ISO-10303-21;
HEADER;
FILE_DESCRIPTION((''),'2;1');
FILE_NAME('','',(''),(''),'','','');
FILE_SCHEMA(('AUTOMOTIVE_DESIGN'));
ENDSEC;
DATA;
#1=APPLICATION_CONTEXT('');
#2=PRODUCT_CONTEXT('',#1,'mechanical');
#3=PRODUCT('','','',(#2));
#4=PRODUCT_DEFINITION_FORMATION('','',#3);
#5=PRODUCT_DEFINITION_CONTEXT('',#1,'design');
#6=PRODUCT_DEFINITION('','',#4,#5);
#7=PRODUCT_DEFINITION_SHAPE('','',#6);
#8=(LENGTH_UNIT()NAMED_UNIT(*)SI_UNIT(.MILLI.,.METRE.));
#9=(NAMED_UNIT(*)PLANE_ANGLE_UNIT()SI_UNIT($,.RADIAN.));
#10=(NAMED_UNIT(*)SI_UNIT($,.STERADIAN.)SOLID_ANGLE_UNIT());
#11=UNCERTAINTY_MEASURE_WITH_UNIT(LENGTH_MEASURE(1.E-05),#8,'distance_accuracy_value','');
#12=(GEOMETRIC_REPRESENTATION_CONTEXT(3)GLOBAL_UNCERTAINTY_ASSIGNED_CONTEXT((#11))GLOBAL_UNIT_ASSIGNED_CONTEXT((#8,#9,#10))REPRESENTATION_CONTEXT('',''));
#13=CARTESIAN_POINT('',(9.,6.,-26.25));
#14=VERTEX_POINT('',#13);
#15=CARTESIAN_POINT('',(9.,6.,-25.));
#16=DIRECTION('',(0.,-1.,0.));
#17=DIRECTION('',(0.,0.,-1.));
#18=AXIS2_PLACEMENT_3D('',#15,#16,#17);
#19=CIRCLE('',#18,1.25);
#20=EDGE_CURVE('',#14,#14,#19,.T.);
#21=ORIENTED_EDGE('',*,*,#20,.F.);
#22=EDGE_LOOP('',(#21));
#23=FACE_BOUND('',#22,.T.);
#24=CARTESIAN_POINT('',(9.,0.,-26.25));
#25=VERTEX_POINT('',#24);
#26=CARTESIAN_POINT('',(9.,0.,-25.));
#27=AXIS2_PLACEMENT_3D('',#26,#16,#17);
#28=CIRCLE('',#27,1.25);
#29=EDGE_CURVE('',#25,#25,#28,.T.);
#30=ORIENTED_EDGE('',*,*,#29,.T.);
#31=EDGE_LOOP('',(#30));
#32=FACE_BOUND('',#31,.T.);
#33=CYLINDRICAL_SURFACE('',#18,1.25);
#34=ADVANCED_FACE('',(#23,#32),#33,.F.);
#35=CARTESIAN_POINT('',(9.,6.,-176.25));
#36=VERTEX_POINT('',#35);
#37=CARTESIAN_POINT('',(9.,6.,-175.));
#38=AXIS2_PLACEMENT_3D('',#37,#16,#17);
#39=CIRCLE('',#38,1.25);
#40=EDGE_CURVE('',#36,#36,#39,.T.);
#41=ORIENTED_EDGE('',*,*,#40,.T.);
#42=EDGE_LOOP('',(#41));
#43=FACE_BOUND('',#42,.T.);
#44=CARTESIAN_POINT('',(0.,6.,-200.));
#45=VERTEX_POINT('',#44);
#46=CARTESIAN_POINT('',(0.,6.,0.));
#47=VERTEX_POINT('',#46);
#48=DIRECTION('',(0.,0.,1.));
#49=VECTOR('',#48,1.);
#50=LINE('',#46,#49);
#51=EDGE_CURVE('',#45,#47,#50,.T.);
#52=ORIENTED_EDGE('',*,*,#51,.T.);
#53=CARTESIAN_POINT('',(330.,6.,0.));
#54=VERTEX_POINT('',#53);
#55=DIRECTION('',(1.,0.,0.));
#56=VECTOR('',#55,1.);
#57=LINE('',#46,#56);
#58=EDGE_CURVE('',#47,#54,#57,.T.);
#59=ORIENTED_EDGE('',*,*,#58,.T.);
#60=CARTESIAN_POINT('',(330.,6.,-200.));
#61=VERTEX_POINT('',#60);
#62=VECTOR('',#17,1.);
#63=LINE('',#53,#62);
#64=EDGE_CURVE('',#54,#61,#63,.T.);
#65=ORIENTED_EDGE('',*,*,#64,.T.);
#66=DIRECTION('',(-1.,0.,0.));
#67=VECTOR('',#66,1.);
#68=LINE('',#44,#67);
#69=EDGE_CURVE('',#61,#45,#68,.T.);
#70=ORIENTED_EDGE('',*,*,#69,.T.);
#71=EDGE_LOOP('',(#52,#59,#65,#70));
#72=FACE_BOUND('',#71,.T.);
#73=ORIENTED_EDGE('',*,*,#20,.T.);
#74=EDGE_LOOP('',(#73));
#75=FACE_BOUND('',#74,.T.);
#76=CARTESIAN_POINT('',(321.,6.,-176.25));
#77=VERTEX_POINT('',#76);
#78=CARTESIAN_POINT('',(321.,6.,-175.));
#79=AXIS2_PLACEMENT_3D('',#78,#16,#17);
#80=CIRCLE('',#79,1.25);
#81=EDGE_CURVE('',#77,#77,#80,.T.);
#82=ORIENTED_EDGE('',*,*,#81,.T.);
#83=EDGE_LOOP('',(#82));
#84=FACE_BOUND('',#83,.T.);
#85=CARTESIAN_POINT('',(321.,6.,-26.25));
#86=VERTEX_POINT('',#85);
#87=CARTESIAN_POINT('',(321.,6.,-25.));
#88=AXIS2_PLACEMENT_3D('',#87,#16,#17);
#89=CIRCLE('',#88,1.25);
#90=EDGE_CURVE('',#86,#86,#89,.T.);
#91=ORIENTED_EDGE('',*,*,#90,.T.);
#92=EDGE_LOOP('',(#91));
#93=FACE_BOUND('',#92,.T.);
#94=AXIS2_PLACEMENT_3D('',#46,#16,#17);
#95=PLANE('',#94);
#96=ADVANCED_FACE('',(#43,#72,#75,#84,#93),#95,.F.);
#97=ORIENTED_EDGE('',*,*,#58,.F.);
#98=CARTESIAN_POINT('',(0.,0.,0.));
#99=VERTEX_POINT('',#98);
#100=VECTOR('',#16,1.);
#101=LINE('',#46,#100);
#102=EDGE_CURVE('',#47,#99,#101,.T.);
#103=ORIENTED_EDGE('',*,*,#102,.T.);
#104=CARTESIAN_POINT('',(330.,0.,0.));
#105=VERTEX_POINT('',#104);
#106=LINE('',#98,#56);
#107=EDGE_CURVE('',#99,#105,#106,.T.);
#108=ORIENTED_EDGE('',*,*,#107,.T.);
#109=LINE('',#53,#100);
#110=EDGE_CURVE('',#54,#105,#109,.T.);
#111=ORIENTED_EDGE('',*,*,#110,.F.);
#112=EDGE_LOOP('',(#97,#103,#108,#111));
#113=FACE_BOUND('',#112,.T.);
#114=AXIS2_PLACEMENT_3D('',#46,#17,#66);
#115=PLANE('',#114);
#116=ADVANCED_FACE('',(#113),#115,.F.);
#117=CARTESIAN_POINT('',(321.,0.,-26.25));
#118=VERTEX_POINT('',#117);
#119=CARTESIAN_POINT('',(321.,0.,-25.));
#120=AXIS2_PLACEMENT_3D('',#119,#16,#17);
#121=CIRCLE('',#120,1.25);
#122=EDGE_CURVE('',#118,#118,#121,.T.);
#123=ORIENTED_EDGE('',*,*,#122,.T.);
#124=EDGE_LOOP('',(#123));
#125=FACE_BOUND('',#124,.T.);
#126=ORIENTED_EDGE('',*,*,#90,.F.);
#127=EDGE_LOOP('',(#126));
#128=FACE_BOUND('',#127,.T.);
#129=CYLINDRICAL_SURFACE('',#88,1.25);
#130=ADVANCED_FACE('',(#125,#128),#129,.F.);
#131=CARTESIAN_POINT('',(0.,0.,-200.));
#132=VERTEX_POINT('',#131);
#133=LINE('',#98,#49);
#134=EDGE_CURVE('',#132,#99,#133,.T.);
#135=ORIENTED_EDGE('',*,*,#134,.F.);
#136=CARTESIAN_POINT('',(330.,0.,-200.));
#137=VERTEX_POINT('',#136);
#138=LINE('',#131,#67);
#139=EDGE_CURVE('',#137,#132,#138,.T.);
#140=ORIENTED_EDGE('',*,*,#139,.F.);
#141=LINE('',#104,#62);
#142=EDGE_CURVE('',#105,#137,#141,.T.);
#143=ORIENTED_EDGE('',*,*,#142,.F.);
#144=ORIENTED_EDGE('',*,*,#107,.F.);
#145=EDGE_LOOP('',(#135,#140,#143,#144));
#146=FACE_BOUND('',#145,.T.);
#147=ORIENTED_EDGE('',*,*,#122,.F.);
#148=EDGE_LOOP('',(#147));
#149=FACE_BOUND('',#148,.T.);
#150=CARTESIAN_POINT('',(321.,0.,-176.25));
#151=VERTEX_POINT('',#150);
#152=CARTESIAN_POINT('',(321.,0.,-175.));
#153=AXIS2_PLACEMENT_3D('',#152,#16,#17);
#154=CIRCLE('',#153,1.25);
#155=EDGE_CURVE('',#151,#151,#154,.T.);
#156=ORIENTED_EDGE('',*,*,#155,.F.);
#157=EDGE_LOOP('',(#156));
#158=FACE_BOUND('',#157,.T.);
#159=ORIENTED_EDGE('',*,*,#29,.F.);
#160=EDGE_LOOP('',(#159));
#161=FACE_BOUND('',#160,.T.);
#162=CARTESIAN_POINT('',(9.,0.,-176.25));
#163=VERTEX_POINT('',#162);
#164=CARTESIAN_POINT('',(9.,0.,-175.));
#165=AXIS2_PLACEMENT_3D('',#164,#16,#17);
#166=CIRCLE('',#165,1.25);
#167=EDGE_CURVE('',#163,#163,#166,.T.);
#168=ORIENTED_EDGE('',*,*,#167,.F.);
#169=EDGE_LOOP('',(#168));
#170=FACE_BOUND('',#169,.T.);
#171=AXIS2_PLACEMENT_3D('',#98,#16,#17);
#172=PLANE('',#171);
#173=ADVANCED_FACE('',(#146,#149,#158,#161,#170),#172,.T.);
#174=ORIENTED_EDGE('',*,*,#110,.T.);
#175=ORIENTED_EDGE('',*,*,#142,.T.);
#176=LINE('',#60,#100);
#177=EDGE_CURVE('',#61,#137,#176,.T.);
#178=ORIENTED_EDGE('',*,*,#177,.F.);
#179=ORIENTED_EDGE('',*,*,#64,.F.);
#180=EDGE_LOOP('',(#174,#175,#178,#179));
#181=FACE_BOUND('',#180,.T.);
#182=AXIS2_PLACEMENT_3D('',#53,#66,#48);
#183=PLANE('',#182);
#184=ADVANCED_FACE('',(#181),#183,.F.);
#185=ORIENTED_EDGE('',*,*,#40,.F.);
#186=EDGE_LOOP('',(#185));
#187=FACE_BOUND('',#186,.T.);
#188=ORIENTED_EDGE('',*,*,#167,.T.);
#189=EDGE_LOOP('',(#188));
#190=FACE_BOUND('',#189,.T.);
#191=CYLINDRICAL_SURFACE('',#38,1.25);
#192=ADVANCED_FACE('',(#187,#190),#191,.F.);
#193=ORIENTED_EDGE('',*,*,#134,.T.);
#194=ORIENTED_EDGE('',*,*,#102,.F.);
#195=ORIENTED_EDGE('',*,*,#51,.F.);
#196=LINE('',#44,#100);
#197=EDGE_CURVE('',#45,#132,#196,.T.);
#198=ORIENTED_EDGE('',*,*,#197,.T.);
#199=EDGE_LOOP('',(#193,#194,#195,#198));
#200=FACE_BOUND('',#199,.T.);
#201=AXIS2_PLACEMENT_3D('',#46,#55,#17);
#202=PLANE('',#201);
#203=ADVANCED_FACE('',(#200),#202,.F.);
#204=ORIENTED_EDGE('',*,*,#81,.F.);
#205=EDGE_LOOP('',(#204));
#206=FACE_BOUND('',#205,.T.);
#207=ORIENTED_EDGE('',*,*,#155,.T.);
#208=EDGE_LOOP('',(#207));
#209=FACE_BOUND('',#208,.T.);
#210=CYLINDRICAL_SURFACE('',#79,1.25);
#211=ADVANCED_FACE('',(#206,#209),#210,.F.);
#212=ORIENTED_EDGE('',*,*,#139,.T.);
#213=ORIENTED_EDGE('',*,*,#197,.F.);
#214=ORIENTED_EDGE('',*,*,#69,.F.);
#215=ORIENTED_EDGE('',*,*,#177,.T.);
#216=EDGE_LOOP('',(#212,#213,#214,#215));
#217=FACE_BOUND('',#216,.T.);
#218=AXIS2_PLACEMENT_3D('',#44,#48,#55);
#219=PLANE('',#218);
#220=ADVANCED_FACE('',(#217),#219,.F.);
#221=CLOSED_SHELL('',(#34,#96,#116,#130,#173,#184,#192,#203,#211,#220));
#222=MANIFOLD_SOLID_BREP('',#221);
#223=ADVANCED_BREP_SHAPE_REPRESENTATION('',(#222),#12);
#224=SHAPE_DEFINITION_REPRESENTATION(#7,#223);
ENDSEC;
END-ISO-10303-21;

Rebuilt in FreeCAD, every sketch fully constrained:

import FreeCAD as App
import Part
import Sketcher

V = App.Vector
Q = App.Units.Quantity

doc = App.newDocument("Part")
params = doc.addObject("Spreadsheet::Sheet", "Params")
for row, (alias, value) in enumerate([
    ("sketch1_width", "330 mm"),
    ("sketch1_height", "200 mm"),
    ("pad1_length", "6 mm"),
    ("sketch2_diameter", "2.5 mm"),
], start=1):
    params.set(f"A{row}", alias)
    params.set(f"B{row}", "=" + value)
    params.setAlias(f"B{row}", alias)

body = doc.addObject("PartDesign::Body", "Body")

sketch1 = doc.addObject("Sketcher::SketchObject", "Sketch")
body.addObject(sketch1)
sketch1.AttachmentSupport = (doc.XZ_Plane, [""])
sketch1.MapMode = "FlatFace"
sketch1.addGeometry([
    Part.LineSegment(V(0, -200, 0), V(0, 0, 0)),
    Part.LineSegment(V(0, 0, 0), V(330, 0, 0)),
    Part.LineSegment(V(330, 0, 0), V(330, -200, 0)),
    Part.LineSegment(V(330, -200, 0), V(0, -200, 0)),
], False)
sketch1.addConstraint([
    Sketcher.Constraint("Coincident", 0, 2, 1, 1),
    Sketcher.Constraint("Coincident", 1, 2, 2, 1),
    Sketcher.Constraint("Coincident", 2, 2, 3, 1),
    Sketcher.Constraint("Coincident", 3, 2, 0, 1),
    Sketcher.Constraint("Vertical", 0),
    Sketcher.Constraint("Horizontal", 1),
    Sketcher.Constraint("Vertical", 2),
    Sketcher.Constraint("Horizontal", 3),
    Sketcher.Constraint("Coincident", 0, 2, -1, 1),
    Sketcher.Constraint("DistanceX", 1, 1, 1, 2, Q("330 mm")),
    Sketcher.Constraint("DistanceY", 0, 1, 0, 2, Q("200 mm")),
])
sketch1.setExpression("Constraints[9]", "Params.sketch1_width")
sketch1.setExpression("Constraints[10]", "Params.sketch1_height")
pad1 = doc.addObject("PartDesign::Pad", "Pad")
body.addObject(pad1)
pad1.Profile = sketch1
pad1.setExpression("Length", "Params.pad1_length")
pad1.Reversed = True

sketch2 = doc.addObject("Sketcher::SketchObject", "Sketch001")
body.addObject(sketch2)
sketch2.AttachmentSupport = (doc.XZ_Plane, [""])
sketch2.MapMode = "FlatFace"
sketch2.addGeometry([
    Part.Circle(V(9, -175, 0), V(0, 0, 1), 1.2),
    Part.Circle(V(9, -25, 0), V(0, 0, 1), 1.2),
    Part.Circle(V(321, -175, 0), V(0, 0, 1), 1.2),
    Part.Circle(V(321, -25, 0), V(0, 0, 1), 1.2),
], False)
sketch2.addConstraint([
    Sketcher.Constraint("Equal", 0, 1),
    Sketcher.Constraint("Equal", 1, 2),
    Sketcher.Constraint("Equal", 2, 3),
    Sketcher.Constraint("Horizontal", 0, 3, 2, 3),
    Sketcher.Constraint("Horizontal", 1, 3, 3, 3),
    Sketcher.Constraint("Vertical", 0, 3, 1, 3),
    Sketcher.Constraint("Vertical", 2, 3, 3, 3),
    Sketcher.Constraint("Diameter", 0, Q("2.5 mm")),
    Sketcher.Constraint("DistanceX", -1, 1, 0, 3, Q("9 mm")),
    Sketcher.Constraint("DistanceY", 0, 3, -1, 1, Q("175 mm")),
    Sketcher.Constraint("DistanceY", 1, 3, -1, 1, Q("25 mm")),
    Sketcher.Constraint("DistanceX", -1, 1, 2, 3, Q("321 mm")),
])
sketch2.setExpression("Constraints[7]", "Params.sketch2_diameter")
pocket1 = doc.addObject("PartDesign::Pocket", "Pocket")
body.addObject(pocket1)
pocket1.Profile = sketch2
pocket1.Type = "ThroughAll"

doc.recompute()
